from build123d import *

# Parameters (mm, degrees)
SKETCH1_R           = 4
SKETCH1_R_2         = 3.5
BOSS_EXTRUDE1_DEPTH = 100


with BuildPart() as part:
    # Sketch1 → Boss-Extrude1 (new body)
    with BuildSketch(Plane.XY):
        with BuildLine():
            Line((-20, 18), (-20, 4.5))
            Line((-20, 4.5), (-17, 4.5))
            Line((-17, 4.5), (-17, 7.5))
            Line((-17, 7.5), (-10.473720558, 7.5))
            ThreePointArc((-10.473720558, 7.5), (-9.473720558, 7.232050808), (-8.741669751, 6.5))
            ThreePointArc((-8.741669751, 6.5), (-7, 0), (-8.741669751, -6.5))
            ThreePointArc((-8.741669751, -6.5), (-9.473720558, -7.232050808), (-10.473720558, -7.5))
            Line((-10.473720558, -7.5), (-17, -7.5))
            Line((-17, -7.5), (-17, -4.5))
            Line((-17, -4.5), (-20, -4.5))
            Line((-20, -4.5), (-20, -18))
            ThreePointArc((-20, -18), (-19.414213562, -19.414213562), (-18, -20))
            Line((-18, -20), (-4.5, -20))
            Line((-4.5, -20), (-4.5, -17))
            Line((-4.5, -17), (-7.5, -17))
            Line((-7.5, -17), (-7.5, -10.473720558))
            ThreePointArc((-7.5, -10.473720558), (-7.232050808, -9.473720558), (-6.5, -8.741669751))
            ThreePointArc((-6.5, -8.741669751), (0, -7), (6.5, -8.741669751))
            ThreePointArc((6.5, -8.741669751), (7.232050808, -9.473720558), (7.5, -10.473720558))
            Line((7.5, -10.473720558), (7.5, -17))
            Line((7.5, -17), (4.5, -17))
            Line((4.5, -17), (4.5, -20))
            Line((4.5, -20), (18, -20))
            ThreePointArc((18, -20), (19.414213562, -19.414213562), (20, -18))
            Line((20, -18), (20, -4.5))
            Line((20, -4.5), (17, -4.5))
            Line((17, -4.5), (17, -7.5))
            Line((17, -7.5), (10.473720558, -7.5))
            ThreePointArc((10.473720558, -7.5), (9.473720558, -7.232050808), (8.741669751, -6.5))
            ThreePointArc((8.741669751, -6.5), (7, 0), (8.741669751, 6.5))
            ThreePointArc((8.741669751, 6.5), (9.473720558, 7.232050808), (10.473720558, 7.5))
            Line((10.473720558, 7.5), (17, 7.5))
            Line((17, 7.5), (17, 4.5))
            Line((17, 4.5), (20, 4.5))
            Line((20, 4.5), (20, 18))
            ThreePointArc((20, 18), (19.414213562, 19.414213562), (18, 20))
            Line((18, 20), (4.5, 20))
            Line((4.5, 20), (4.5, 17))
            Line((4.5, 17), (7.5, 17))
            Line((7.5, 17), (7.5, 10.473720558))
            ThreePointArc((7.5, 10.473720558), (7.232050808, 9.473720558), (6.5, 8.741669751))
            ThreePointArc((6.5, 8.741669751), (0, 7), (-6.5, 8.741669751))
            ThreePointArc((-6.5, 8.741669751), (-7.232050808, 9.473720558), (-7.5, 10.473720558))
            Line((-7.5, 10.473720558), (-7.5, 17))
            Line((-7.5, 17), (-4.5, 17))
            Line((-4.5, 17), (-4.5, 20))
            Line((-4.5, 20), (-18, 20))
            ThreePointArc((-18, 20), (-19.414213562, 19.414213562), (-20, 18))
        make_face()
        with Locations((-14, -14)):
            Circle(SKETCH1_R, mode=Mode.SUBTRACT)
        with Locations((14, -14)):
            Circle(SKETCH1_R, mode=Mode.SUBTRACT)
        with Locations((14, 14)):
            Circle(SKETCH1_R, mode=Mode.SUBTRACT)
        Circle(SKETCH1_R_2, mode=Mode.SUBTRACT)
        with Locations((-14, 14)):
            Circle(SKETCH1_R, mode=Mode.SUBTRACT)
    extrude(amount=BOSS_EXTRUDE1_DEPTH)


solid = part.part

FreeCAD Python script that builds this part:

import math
import FreeCAD as App
import Part
import Sketcher

V = App.Vector

doc = App.newDocument("Part")
body = doc.addObject("PartDesign::Body", "Body")

# Sketch on XY plane
sketch1 = body.newObject("Sketcher::SketchObject", "Sketch")
sketch1.AttachmentSupport = (doc.getObject("XY_Plane"), [""])
sketch1.MapMode = "FlatFace"
sketch1.addGeometry(Part.LineSegment(V(-20, 18, 0), V(-20, 4.5, 0)), False)
sketch1.addGeometry(Part.LineSegment(V(-20, 4.5, 0), V(-17, 4.5, 0)), False)
sketch1.addGeometry(Part.LineSegment(V(-17, 4.5, 0), V(-17, 7.5, 0)), False)
sketch1.addGeometry(Part.LineSegment(V(-17, 7.5, 0), V(-10.5, 7.5, 0)), False)
sketch1.addGeometry(Part.ArcOfCircle(Part.Circle(V(-10.5, 5.5, 0), V(0, 0, 1), 2), math.radians(30), math.radians(90)), False)
sketch1.addGeometry(Part.ArcOfCircle(Part.Circle(V(-20, 0, 0), V(0, 0, 1), 13), math.radians(-30), math.radians(30)), False)
sketch1.addGeometry(Part.ArcOfCircle(Part.Circle(V(-10.5, -5.5, 0), V(0, 0, 1), 2), math.radians(-90), math.radians(-30)), False)
sketch1.addGeometry(Part.LineSegment(V(-10.5, -7.5, 0), V(-17, -7.5, 0)), False)
sketch1.addGeometry(Part.LineSegment(V(-17, -7.5, 0), V(-17, -4.5, 0)), False)
sketch1.addGeometry(Part.LineSegment(V(-17, -4.5, 0), V(-20, -4.5, 0)), False)
sketch1.addGeometry(Part.LineSegment(V(-20, -4.5, 0), V(-20, -18, 0)), False)
sketch1.addGeometry(Part.ArcOfCircle(Part.Circle(V(-18, -18, 0), V(0, 0, 1), 2), math.radians(-180), math.radians(-90)), False)
sketch1.addGeometry(Part.LineSegment(V(-18, -20, 0), V(-4.5, -20, 0)), False)
sketch1.addGeometry(Part.LineSegment(V(-4.5, -20, 0), V(-4.5, -17, 0)), False)
sketch1.addGeometry(Part.LineSegment(V(-4.5, -17, 0), V(-7.5, -17, 0)), False)
sketch1.addGeometry(Part.LineSegment(V(-7.5, -17, 0), V(-7.5, -10.5, 0)), False)
sketch1.addGeometry(Part.ArcOfCircle(Part.Circle(V(-5.5, -10.5, 0), V(0, 0, 1), 2), math.radians(120), math.radians(180)), False)
sketch1.addGeometry(Part.ArcOfCircle(Part.Circle(V(0, -20, 0), V(0, 0, 1), 13), math.radians(60), math.radians(120)), False)
sketch1.addGeometry(Part.ArcOfCircle(Part.Circle(V(5.5, -10.5, 0), V(0, 0, 1), 2), math.radians(0), math.radians(60)), False)
sketch1.addGeometry(Part.LineSegment(V(7.5, -10.5, 0), V(7.5, -17, 0)), False)
sketch1.addGeometry(Part.LineSegment(V(7.5, -17, 0), V(4.5, -17, 0)), False)
sketch1.addGeometry(Part.LineSegment(V(4.5, -17, 0), V(4.5, -20, 0)), False)
sketch1.addGeometry(Part.LineSegment(V(4.5, -20, 0), V(18, -20, 0)), False)
sketch1.addGeometry(Part.ArcOfCircle(Part.Circle(V(18, -18, 0), V(0, 0, 1), 2), math.radians(-90), math.radians(0)), False)
sketch1.addGeometry(Part.LineSegment(V(20, -18, 0), V(20, -4.5, 0)), False)
sketch1.addGeometry(Part.LineSegment(V(20, -4.5, 0), V(17, -4.5, 0)), False)
sketch1.addGeometry(Part.LineSegment(V(17, -4.5, 0), V(17, -7.5, 0)), False)
sketch1.addGeometry(Part.LineSegment(V(17, -7.5, 0), V(10.5, -7.5, 0)), False)
sketch1.addGeometry(Part.ArcOfCircle(Part.Circle(V(10.5, -5.5, 0), V(0, 0, 1), 2), math.radians(-150), math.radians(-90)), False)
sketch1.addGeometry(Part.ArcOfCircle(Part.Circle(V(20, 0, 0), V(0, 0, 1), 13), math.radians(150), math.radians(210)), False)
sketch1.addGeometry(Part.ArcOfCircle(Part.Circle(V(10.5, 5.5, 0), V(0, 0, 1), 2), math.radians(90), math.radians(150)), False)
sketch1.addGeometry(Part.LineSegment(V(10.5, 7.5, 0), V(17, 7.5, 0)), False)
sketch1.addGeometry(Part.LineSegment(V(17, 7.5, 0), V(17, 4.5, 0)), False)
sketch1.addGeometry(Part.LineSegment(V(17, 4.5, 0), V(20, 4.5, 0)), False)
sketch1.addGeometry(Part.LineSegment(V(20, 4.5, 0), V(20, 18, 0)), False)
sketch1.addGeometry(Part.ArcOfCircle(Part.Circle(V(18, 18, 0), V(0, 0, 1), 2), math.radians(0), math.radians(90)), False)
sketch1.addGeometry(Part.LineSegment(V(18, 20, 0), V(4.5, 20, 0)), False)
sketch1.addGeometry(Part.LineSegment(V(4.5, 20, 0), V(4.5, 17, 0)), False)
sketch1.addGeometry(Part.LineSegment(V(4.5, 17, 0), V(7.5, 17, 0)), False)
sketch1.addGeometry(Part.LineSegment(V(7.5, 17, 0), V(7.5, 10.5, 0)), False)
sketch1.addGeometry(Part.ArcOfCircle(Part.Circle(V(5.5, 10.5, 0), V(0, 0, 1), 2), math.radians(-60), math.radians(0)), False)
sketch1.addGeometry(Part.ArcOfCircle(Part.Circle(V(0, 20, 0), V(0, 0, 1), 13), math.radians(-120), math.radians(-60)), False)
sketch1.addGeometry(Part.ArcOfCircle(Part.Circle(V(-5.5, 10.5, 0), V(0, 0, 1), 2), math.radians(180), math.radians(240)), False)
sketch1.addGeometry(Part.LineSegment(V(-7.5, 10.5, 0), V(-7.5, 17, 0)), False)
sketch1.addGeometry(Part.LineSegment(V(-7.5, 17, 0), V(-4.5, 17, 0)), False)
sketch1.addGeometry(Part.LineSegment(V(-4.5, 17, 0), V(-4.5, 20, 0)), False)
sketch1.addGeometry(Part.LineSegment(V(-4.5, 20, 0), V(-18, 20, 0)), False)
sketch1.addGeometry(Part.ArcOfCircle(Part.Circle(V(-18, 18, 0), V(0, 0, 1), 2), math.radians(90), math.radians(180)), False)
sketch1.addGeometry(Part.Circle(V(-14, -14, 0), V(0, 0, 1), 4), False)
sketch1.addGeometry(Part.Circle(V(14, -14, 0), V(0, 0, 1), 4), False)
sketch1.addGeometry(Part.Circle(V(-14, 14, 0), V(0, 0, 1), 4), False)
sketch1.addGeometry(Part.Circle(V(0, 0, 0), V(0, 0, 1), 3.5), False)
sketch1.addGeometry(Part.Circle(V(14, 14, 0), V(0, 0, 1), 4), False)
sketch1.addConstraint(Sketcher.Constraint("Coincident", 0, 2, 1, 1))
sketch1.addConstraint(Sketcher.Constraint("Coincident", 1, 2, 2, 1))
sketch1.addConstraint(Sketcher.Constraint("Coincident", 2, 2, 3, 1))
sketch1.addConstraint(Sketcher.Constraint("Tangent", 3, 2, 4, 2))
sketch1.addConstraint(Sketcher.Constraint("Tangent", 4, 1, 5, 2))
sketch1.addConstraint(Sketcher.Constraint("Tangent", 5, 1, 6, 2))
sketch1.addConstraint(Sketcher.Constraint("Tangent", 6, 1, 7, 1))
sketch1.addConstraint(Sketcher.Constraint("Coincident", 7, 2, 8, 1))
sketch1.addConstraint(Sketcher.Constraint("Coincident", 8, 2, 9, 1))
sketch1.addConstraint(Sketcher.Constraint("Coincident", 9, 2, 10, 1))
sketch1.addConstraint(Sketcher.Constraint("Tangent", 10, 2, 11, 1))
sketch1.addConstraint(Sketcher.Constraint("Tangent", 11, 2, 12, 1))
sketch1.addConstraint(Sketcher.Constraint("Coincident", 12, 2, 13, 1))
sketch1.addConstraint(Sketcher.Constraint("Coincident", 13, 2, 14, 1))
sketch1.addConstraint(Sketcher.Constraint("Coincident", 14, 2, 15, 1))
sketch1.addConstraint(Sketcher.Constraint("Tangent", 15, 2, 16, 2))
sketch1.addConstraint(Sketcher.Constraint("Tangent", 16, 1, 17, 2))
sketch1.addConstraint(Sketcher.Constraint("Tangent", 17, 1, 18, 2))
sketch1.addConstraint(Sketcher.Constraint("Tangent", 18, 1, 19, 1))
sketch1.addConstraint(Sketcher.Constraint("Coincident", 19, 2, 20, 1))
sketch1.addConstraint(Sketcher.Constraint("Coincident", 20, 2, 21, 1))
sketch1.addConstraint(Sketcher.Constraint("Coincident", 21, 2, 22, 1))
sketch1.addConstraint(Sketcher.Constraint("Tangent", 22, 2, 23, 1))
sketch1.addConstraint(Sketcher.Constraint("Tangent", 23, 2, 24, 1))
sketch1.addConstraint(Sketcher.Constraint("Coincident", 24, 2, 25, 1))
sketch1.addConstraint(Sketcher.Constraint("Coincident", 25, 2, 26, 1))
sketch1.addConstraint(Sketcher.Constraint("Coincident", 26, 2, 27, 1))
sketch1.addConstraint(Sketcher.Constraint("Tangent", 27, 2, 28, 2))
sketch1.addConstraint(Sketcher.Constraint("Tangent", 28, 1, 29, 2))
sketch1.addConstraint(Sketcher.Constraint("Tangent", 29, 1, 30, 2))
sketch1.addConstraint(Sketcher.Constraint("Tangent", 30, 1, 31, 1))
sketch1.addConstraint(Sketcher.Constraint("Coincident", 31, 2, 32, 1))
sketch1.addConstraint(Sketcher.Constraint("Coincident", 32, 2, 33, 1))
sketch1.addConstraint(Sketcher.Constraint("Coincident", 33, 2, 34, 1))
sketch1.addConstraint(Sketcher.Constraint("Tangent", 34, 2, 35, 1))
sketch1.addConstraint(Sketcher.Constraint("Tangent", 35, 2, 36, 1))
sketch1.addConstraint(Sketcher.Constraint("Coincident", 36, 2, 37, 1))
sketch1.addConstraint(Sketcher.Constraint("Coincident", 37, 2, 38, 1))
sketch1.addConstraint(Sketcher.Constraint("Coincident", 38, 2, 39, 1))
sketch1.addConstraint(Sketcher.Constraint("Tangent", 39, 2, 40, 2))
sketch1.addConstraint(Sketcher.Constraint("Tangent", 40, 1, 41, 2))
sketch1.addConstraint(Sketcher.Constraint("Tangent", 41, 1, 42, 2))
sketch1.addConstraint(Sketcher.Constraint("Tangent", 42, 1, 43, 1))
sketch1.addConstraint(Sketcher.Constraint("Coincident", 43, 2, 44, 1))
sketch1.addConstraint(Sketcher.Constraint("Coincident", 44, 2, 45, 1))
sketch1.addConstraint(Sketcher.Constraint("Coincident", 45, 2, 46, 1))
sketch1.addConstraint(Sketcher.Constraint("Tangent", 46, 2, 47, 1))
sketch1.addConstraint(Sketcher.Constraint("Tangent", 47, 2, 0, 1))
sketch1.addConstraint(Sketcher.Constraint("Vertical", 0))
sketch1.addConstraint(Sketcher.Constraint("Horizontal", 1))
sketch1.addConstraint(Sketcher.Constraint("Vertical", 2))
sketch1.addConstraint(Sketcher.Constraint("Horizontal", 3))
sketch1.addConstraint(Sketcher.Constraint("Horizontal", 7))
sketch1.addConstraint(Sketcher.Constraint("Vertical", 8))
sketch1.addConstraint(Sketcher.Constraint("Horizontal", 9))
sketch1.addConstraint(Sketcher.Constraint("Vertical", 10))
sketch1.addConstraint(Sketcher.Constraint("Horizontal", 12))
sketch1.addConstraint(Sketcher.Constraint("Vertical", 13))
sketch1.addConstraint(Sketcher.Constraint("Horizontal", 14))
sketch1.addConstraint(Sketcher.Constraint("Vertical", 15))
sketch1.addConstraint(Sketcher.Constraint("Vertical", 19))
sketch1.addConstraint(Sketcher.Constraint("Horizontal", 20))
sketch1.addConstraint(Sketcher.Constraint("Vertical", 21))
sketch1.addConstraint(Sketcher.Constraint("Horizontal", 22))
sketch1.addConstraint(Sketcher.Constraint("Vertical", 24))
sketch1.addConstraint(Sketcher.Constraint("Horizontal", 25))
sketch1.addConstraint(Sketcher.Constraint("Vertical", 26))
sketch1.addConstraint(Sketcher.Constraint("Horizontal", 27))
sketch1.addConstraint(Sketcher.Constraint("Horizontal", 31))
sketch1.addConstraint(Sketcher.Constraint("Vertical", 32))
sketch1.addConstraint(Sketcher.Constraint("Horizontal", 33))
sketch1.addConstraint(Sketcher.Constraint("Vertical", 34))
sketch1.addConstraint(Sketcher.Constraint("Horizontal", 36))
sketch1.addConstraint(Sketcher.Constraint("Vertical", 37))
sketch1.addConstraint(Sketcher.Constraint("Horizontal", 38))
sketch1.addConstraint(Sketcher.Constraint("Vertical", 39))
sketch1.addConstraint(Sketcher.Constraint("Vertical", 43))
sketch1.addConstraint(Sketcher.Constraint("Horizontal", 44))
sketch1.addConstraint(Sketcher.Constraint("Vertical", 45))
sketch1.addConstraint(Sketcher.Constraint("Horizontal", 46))
sketch1.addConstraint(Sketcher.Constraint("Coincident", 51, 3, -1, 1))
sketch1.addConstraint(Sketcher.Constraint("Equal", 4, 6))
sketch1.addConstraint(Sketcher.Constraint("Equal", 6, 11))
sketch1.addConstraint(Sketcher.Constraint("Equal", 11, 16))
sketch1.addConstraint(Sketcher.Constraint("Equal", 5, 17))
sketch1.addConstraint(Sketcher.Constraint("Equal", 16, 18))
sketch1.addConstraint(Sketcher.Constraint("Equal", 18, 23))
sketch1.addConstraint(Sketcher.Constraint("Equal", 23, 28))
sketch1.addConstraint(Sketcher.Constraint("Equal", 17, 29))
sketch1.addConstraint(Sketcher.Constraint("Equal", 28, 30))
sketch1.addConstraint(Sketcher.Constraint("Equal", 30, 35))
sketch1.addConstraint(Sketcher.Constraint("Equal", 35, 40))
sketch1.addConstraint(Sketcher.Constraint("Equal", 29, 41))
sketch1.addConstraint(Sketcher.Constraint("Equal", 40, 42))
sketch1.addConstraint(Sketcher.Constraint("Equal", 42, 47))
sketch1.addConstraint(Sketcher.Constraint("Equal", 48, 49))
sketch1.addConstraint(Sketcher.Constraint("Equal", 49, 50))
sketch1.addConstraint(Sketcher.Constraint("Equal", 50, 52))
sketch1.addConstraint(Sketcher.Constraint("Symmetric", 4, 3, 28, 3, -1, 1))
sketch1.addConstraint(Sketcher.Constraint("Symmetric", 6, 3, 30, 3, -1, 1))
sketch1.addConstraint(Sketcher.Constraint("Symmetric", 11, 3, 35, 3, -1, 1))
sketch1.addConstraint(Sketcher.Constraint("Symmetric", 16, 3, 40, 3, -1, 1))
sketch1.addConstraint(Sketcher.Constraint("Symmetric", 18, 3, 42, 3, -1, 1))
sketch1.addConstraint(Sketcher.Constraint("Symmetric", 23, 3, 47, 3, -1, 1))
sketch1.addConstraint(Sketcher.Constraint("Symmetric", 49, 3, 50, 3, -1, 1))
sketch1.addConstraint(Sketcher.Constraint("Symmetric", 48, 3, 52, 3, -1, 1))
sketch1.addConstraint(Sketcher.Constraint("Symmetric", 1, 2, 25, 2, -1, 1))
sketch1.addConstraint(Sketcher.Constraint("Symmetric", 8, 2, 32, 2, -1, 1))
sketch1.addConstraint(Sketcher.Constraint("Symmetric", 13, 2, 37, 2, -1, 1))
sketch1.addConstraint(Sketcher.Constraint("Symmetric", 20, 2, 44, 2, -1, 1))
sketch1.addConstraint(Sketcher.Constraint("Symmetric", 16, 3, 18, 3, -2))
sketch1.addConstraint(Sketcher.Constraint("Symmetric", 11, 3, 23, 3, -2))
sketch1.addConstraint(Sketcher.Constraint("Symmetric", 6, 3, 28, 3, -2))
sketch1.addConstraint(Sketcher.Constraint("Symmetric", 48, 3, 49, 3, -2))
sketch1.addConstraint(Sketcher.Constraint("Symmetric", 13, 2, 20, 2, -2))
sketch1.addConstraint(Sketcher.Constraint("Symmetric", 8, 2, 25, 2, -2))
sketch1.addConstraint(Sketcher.Constraint("Horizontal", 17, 3, 11, 2))
sketch1.addConstraint(Sketcher.Constraint("Vertical", 5, 3, 0, 2))
sketch1.addConstraint(Sketcher.Constraint("Equal", 9, 14))
sketch1.addConstraint(Sketcher.Constraint("Equal", 46, 0))
sketch1.addConstraint(Sketcher.Constraint("Equal", 44, 2))
sketch1.addConstraint(Sketcher.Constraint("Equal", 8, 13))
sketch1.addConstraint(Sketcher.Constraint("Equal", 31, 15))
sketch1.addConstraint(Sketcher.Constraint("Diameter", 48, 8.0))
sketch1.addConstraint(Sketcher.Constraint("Diameter", 51, 7.0))
sketch1.addConstraint(Sketcher.Constraint("Radius", 4, 2.0))
sketch1.addConstraint(Sketcher.Constraint("Radius", 5, 13.0))
sketch1.addConstraint(Sketcher.Constraint("DistanceX", 1, 1, 1, 2, 3.0))
sketch1.addConstraint(Sketcher.Constraint("DistanceX", 12, 1, 12, 2, 13.5))
sketch1.addConstraint(Sketcher.Constraint("DistanceX", 5, 3, -1, 1, 20.0))
sketch1.addConstraint(Sketcher.Constraint("DistanceX", 48, 3, -1, 1, 14.0))
sketch1.addConstraint(Sketcher.Constraint("DistanceY", 48, 3, -1, 1, 14.0))
pad1 = body.newObject("PartDesign::Pad", "Pad")
pad1.Profile = sketch1
pad1.Length = 100

doc.recompute()
